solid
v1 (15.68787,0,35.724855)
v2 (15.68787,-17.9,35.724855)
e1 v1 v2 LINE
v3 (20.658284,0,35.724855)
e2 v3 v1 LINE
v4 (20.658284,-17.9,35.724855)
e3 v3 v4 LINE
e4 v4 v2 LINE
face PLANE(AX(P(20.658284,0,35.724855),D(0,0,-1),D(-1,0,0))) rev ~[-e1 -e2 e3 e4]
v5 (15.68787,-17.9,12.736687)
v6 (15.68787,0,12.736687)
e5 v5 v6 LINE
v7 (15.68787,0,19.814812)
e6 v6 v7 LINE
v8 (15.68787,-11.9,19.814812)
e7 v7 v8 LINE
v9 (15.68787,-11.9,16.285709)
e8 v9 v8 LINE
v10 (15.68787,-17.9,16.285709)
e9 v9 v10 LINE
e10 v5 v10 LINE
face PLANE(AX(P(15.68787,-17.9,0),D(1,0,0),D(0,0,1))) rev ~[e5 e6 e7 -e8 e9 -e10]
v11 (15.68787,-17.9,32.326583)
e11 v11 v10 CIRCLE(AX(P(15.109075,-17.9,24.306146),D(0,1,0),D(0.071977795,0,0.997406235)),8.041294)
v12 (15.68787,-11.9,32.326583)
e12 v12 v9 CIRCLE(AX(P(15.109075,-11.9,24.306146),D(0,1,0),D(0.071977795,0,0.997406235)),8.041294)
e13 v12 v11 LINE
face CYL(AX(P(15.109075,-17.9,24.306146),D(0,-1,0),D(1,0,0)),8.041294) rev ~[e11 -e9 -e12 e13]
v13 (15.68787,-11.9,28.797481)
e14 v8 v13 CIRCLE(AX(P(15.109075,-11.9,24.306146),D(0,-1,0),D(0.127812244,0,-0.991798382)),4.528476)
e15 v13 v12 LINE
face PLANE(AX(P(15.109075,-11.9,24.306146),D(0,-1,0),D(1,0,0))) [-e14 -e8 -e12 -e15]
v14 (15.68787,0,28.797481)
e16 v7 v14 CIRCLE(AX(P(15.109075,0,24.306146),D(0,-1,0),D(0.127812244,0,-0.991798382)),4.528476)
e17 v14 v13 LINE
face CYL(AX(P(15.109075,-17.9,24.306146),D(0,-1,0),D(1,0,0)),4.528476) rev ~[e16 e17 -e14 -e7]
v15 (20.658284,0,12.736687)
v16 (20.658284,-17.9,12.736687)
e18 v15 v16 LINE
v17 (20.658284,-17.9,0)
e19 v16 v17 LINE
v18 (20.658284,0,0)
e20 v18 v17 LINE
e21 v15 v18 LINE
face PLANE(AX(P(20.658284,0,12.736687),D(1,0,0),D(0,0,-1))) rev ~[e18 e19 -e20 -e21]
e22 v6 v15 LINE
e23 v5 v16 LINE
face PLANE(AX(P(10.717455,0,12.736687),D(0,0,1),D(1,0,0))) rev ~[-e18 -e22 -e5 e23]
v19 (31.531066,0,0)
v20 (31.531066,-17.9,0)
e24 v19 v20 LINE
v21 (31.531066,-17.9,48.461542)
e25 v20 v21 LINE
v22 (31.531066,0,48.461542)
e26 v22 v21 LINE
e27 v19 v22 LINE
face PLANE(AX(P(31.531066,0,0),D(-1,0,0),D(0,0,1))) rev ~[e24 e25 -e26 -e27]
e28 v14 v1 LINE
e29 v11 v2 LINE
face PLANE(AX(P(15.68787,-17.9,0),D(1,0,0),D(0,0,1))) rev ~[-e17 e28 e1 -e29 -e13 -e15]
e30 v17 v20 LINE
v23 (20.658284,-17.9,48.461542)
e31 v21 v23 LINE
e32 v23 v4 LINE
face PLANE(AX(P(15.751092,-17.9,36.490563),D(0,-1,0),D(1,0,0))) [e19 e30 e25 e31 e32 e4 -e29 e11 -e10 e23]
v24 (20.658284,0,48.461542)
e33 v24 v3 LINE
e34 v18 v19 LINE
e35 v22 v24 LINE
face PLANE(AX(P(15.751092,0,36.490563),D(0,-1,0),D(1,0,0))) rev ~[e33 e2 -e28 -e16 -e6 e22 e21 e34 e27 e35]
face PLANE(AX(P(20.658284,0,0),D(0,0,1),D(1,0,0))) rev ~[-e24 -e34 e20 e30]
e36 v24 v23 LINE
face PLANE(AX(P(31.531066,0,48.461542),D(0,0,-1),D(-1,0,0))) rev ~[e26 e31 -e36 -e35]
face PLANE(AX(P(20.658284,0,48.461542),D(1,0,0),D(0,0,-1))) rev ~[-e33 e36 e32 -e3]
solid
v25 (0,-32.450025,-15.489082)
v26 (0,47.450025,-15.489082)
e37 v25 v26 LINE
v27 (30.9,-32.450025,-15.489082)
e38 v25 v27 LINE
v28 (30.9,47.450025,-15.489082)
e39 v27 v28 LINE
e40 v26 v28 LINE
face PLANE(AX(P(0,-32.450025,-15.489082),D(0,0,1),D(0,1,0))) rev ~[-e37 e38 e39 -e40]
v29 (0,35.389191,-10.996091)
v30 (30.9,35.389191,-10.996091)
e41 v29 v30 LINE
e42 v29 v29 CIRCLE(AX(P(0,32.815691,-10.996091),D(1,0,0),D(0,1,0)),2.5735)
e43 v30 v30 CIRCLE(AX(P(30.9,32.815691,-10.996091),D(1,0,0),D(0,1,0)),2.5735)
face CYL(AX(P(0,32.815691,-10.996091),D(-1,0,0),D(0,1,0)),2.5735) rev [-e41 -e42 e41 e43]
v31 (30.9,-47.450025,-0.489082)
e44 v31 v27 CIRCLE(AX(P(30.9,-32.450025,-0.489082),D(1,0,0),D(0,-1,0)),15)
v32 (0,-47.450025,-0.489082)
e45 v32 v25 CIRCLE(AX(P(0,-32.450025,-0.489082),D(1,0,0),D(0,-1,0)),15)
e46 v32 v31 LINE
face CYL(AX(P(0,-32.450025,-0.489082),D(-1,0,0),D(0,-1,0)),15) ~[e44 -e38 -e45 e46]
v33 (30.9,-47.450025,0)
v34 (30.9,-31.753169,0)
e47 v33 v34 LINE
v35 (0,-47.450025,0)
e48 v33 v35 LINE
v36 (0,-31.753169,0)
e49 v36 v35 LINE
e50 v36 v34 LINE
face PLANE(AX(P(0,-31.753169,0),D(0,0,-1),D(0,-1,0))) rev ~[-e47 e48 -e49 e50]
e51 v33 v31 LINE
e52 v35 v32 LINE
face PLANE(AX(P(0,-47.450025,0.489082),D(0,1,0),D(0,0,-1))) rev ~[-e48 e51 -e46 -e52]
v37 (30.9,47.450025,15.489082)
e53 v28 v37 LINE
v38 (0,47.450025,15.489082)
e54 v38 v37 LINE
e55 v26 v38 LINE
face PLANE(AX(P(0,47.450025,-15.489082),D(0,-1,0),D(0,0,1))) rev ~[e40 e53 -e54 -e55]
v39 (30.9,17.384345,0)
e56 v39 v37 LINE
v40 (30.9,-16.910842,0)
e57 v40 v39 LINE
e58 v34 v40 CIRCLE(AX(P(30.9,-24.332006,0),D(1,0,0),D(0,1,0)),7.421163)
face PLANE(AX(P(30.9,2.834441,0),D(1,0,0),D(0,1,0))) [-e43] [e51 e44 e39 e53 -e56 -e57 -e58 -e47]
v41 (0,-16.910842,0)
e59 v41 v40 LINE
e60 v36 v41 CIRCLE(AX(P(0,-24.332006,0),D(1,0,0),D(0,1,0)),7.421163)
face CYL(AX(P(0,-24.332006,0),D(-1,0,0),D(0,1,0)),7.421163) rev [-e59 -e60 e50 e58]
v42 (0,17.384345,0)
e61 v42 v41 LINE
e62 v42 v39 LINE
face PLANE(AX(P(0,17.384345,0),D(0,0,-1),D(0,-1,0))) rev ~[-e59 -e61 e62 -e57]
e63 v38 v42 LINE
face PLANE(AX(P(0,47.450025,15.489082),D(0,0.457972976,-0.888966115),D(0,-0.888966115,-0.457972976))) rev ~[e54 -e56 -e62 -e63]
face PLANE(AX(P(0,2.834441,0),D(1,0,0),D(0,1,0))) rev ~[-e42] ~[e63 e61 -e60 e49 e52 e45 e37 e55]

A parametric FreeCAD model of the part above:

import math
import FreeCAD as App
import Part
import Sketcher

doc = App.newDocument("Part")
body = doc.addObject("PartDesign::Body", "Body")

# Sketch on XZ plane
sketch1 = body.newObject("Sketcher::SketchObject", "Sketch")
sketch1.AttachmentSupport = (doc.getObject("XZ_Plane"), [""])
sketch1.MapMode = "FlatFace"
sketch1.addGeometry([
    Part.LineSegment(App.Vector(0, 48, 0), App.Vector(0, 0, 0)),  # 0
    Part.LineSegment(App.Vector(0, 0, 0), App.Vector(11, 0, 0)),  # 1
    Part.LineSegment(App.Vector(11, 0, 0), App.Vector(11, 13, 0)),  # 2
    Part.LineSegment(App.Vector(11, 13, 0), App.Vector(21, 13, 0)),  # 3
    Part.LineSegment(App.Vector(21, 13, 0), App.Vector(21, 0, 0)),  # 4
    Part.LineSegment(App.Vector(21, 0, 0), App.Vector(32, 0, 0)),  # 5
    Part.LineSegment(App.Vector(32, 0, 0), App.Vector(32, 48, 0)),  # 6
    Part.LineSegment(App.Vector(32, 48, 0), App.Vector(21, 48, 0)),  # 7
    Part.LineSegment(App.Vector(21, 48, 0), App.Vector(21, 36, 0)),  # 8
    Part.LineSegment(App.Vector(21, 36, 0), App.Vector(11, 36, 0)),  # 9
    Part.LineSegment(App.Vector(11, 36, 0), App.Vector(11, 48, 0)),  # 10
    Part.LineSegment(App.Vector(11, 48, 0), App.Vector(0, 48, 0)),  # 11
], False)
sketch1.addConstraint([
    Sketcher.Constraint("Coincident", 0, 2, 1, 1),
    Sketcher.Constraint("Coincident", 1, 2, 2, 1),
    Sketcher.Constraint("Coincident", 2, 2, 3, 1),
    Sketcher.Constraint("Coincident", 3, 2, 4, 1),
    Sketcher.Constraint("Coincident", 4, 2, 5, 1),
    Sketcher.Constraint("Coincident", 5, 2, 6, 1),
    Sketcher.Constraint("Coincident", 6, 2, 7, 1),
    Sketcher.Constraint("Coincident", 7, 2, 8, 1),
    Sketcher.Constraint("Coincident", 8, 2, 9, 1),
    Sketcher.Constraint("Coincident", 9, 2, 10, 1),
    Sketcher.Constraint("Coincident", 10, 2, 11, 1),
    Sketcher.Constraint("Coincident", 11, 2, 0, 1),
    Sketcher.Constraint("Vertical", 0),
    Sketcher.Constraint("Horizontal", 1),
    Sketcher.Constraint("Vertical", 2),
    Sketcher.Constraint("Horizontal", 3),
    Sketcher.Constraint("Vertical", 4),
    Sketcher.Constraint("Horizontal", 5),
    Sketcher.Constraint("Vertical", 6),
    Sketcher.Constraint("Horizontal", 7),
    Sketcher.Constraint("Vertical", 8),
    Sketcher.Constraint("Horizontal", 9),
    Sketcher.Constraint("Vertical", 10),
    Sketcher.Constraint("Horizontal", 11),
    Sketcher.Constraint("Coincident", 0, 2, -1, 1),
    Sketcher.Constraint("PointOnObject", 4, 2, -1),
    Sketcher.Constraint("Horizontal", 7, 2, 10, 2),
    Sketcher.Constraint("Vertical", 4, 2, 7, 2),
    Sketcher.Constraint("Vertical", 2, 2, 9, 2),
    Sketcher.Constraint("Equal", 4, 8),
    Sketcher.Constraint("DistanceX", 3, 1, 3, 2, 9.940829),
    Sketcher.Constraint("DistanceX", 5, 1, 5, 2, 10.872781),
    Sketcher.Constraint("DistanceY", 0, 2, 0, 1, 48.461542),
    Sketcher.Constraint("DistanceX", 1, 1, 1, 2, 10.717455),
    Sketcher.Constraint("DistanceY", 2, 1, 2, 2, 12.736687),
])
pad1 = body.newObject("PartDesign::Pad", "Pad")
pad1.Profile = sketch1
pad1.Length = 17.9

# Sketch on XZ plane
sketch2 = body.newObject("Sketcher::SketchObject", "Sketch001")
sketch2.AttachmentSupport = (doc.getObject("XZ_Plane"), [""])
sketch2.MapMode = "FlatFace"
sketch2.AttachmentOffset = App.Placement(App.Vector(0, 0, 17.9), App.Rotation())
sketch2.addGeometry(Part.Circle(App.Vector(15.1, 24.3, 0), App.Vector(0, 0, 1), 4.5), False)
sketch2.addConstraint([
    Sketcher.Constraint("Diameter", 0, 9.056951),
    Sketcher.Constraint("DistanceX", -1, 1, 0, 3, 15.109075),
    Sketcher.Constraint("DistanceY", -1, 1, 0, 3, 24.306146),
])
pocket1 = body.newObject("PartDesign::Pocket", "Pocket")
pocket1.Profile = sketch2
pocket1.Length = 25

# Sketch on XZ plane
sketch3 = body.newObject("Sketcher::SketchObject", "Sketch002")
sketch3.AttachmentSupport = (doc.getObject("XZ_Plane"), [""])
sketch3.MapMode = "FlatFace"
sketch3.AttachmentOffset = App.Placement(App.Vector(0, 0, 17.9), App.Rotation())
sketch3.addGeometry(Part.Circle(App.Vector(15, 24, 0), App.Vector(0, 0, 1), 8), False)
sketch3.addConstraint([
    Sketcher.Constraint("Diameter", 0, 16.082588),
    Sketcher.Constraint("DistanceX", -1, 1, 0, 3, 15.109075),
    Sketcher.Constraint("DistanceY", -1, 1, 0, 3, 24.306146),
])
pocket2 = body.newObject("PartDesign::Pocket", "Pocket001")
pocket2.Profile = sketch3
pocket2.Length = 6

# Sketch on XZ plane
sketch4 = body.newObject("Sketcher::SketchObject", "Sketch003")
sketch4.AttachmentSupport = (doc.getObject("XZ_Plane"), [""])
sketch4.MapMode = "FlatFace"
sketch4.AttachmentOffset = App.Placement(App.Vector(0, 0, 17.9), App.Rotation())
sketch4.addGeometry([
    Part.LineSegment(App.Vector(15.7, 52.5, 0), App.Vector(0, 52.5, 0)),  # 0
    Part.LineSegment(App.Vector(0, 52.5, 0), App.Vector(0, 48.5, 0)),  # 1
    Part.LineSegment(App.Vector(0, 48.5, 0), App.Vector(0, 35.7, 0)),  # 2
    Part.LineSegment(App.Vector(0, 35.7, 0), App.Vector(0, 0, 0)),  # 3
    Part.LineSegment(App.Vector(0, 0, 0), App.Vector(15.7, 0, 0)),  # 4
    Part.LineSegment(App.Vector(15.7, 0, 0), App.Vector(15.7, 52.5, 0)),  # 5
], False)
sketch4.addConstraint([
    Sketcher.Constraint("Coincident", 0, 2, 1, 1),
    Sketcher.Constraint("Coincident", 1, 2, 2, 1),
    Sketcher.Constraint("Coincident", 2, 2, 3, 1),
    Sketcher.Constraint("Coincident", 3, 2, 4, 1),
    Sketcher.Constraint("Coincident", 4, 2, 5, 1),
    Sketcher.Constraint("Coincident", 5, 2, 0, 1),
    Sketcher.Constraint("Horizontal", 0),
    Sketcher.Constraint("Vertical", 1),
    Sketcher.Constraint("Vertical", 2),
    Sketcher.Constraint("Vertical", 3),
    Sketcher.Constraint("Horizontal", 4),
    Sketcher.Constraint("Vertical", 5),
    Sketcher.Constraint("Coincident", 3, 2, -1, 1),
    Sketcher.Constraint("DistanceX", 0, 2, 0, 1, 15.68787),
    Sketcher.Constraint("DistanceY", 5, 1, 5, 2, 52.495759),
    Sketcher.Constraint("DistanceY", 1, 2, 1, 1, 4.034217),
    Sketcher.Constraint("DistanceY", 2, 2, 2, 1, 12.736687),
])
pocket3 = body.newObject("PartDesign::Pocket", "Pocket002")
pocket3.Profile = sketch4
pocket3.Length = 25
body2 = doc.addObject("PartDesign::Body", "Body001")

# Sketch on YZ plane
sketch5 = body2.newObject("Sketcher::SketchObject", "Sketch004")
sketch5.AttachmentSupport = (doc.getObject("YZ_Plane001"), [""])
sketch5.MapMode = "FlatFace"
sketch5.addGeometry([
    Part.LineSegment(App.Vector(47.5, 15.5, 0), App.Vector(-32.5, 15.5, 0)),  # 0
    Part.ArcOfCircle(Part.Circle(App.Vector(-32.5, 0.5, 0), App.Vector(0, 0, 1), 15), math.radians(90), math.radians(180)),  # 1
    Part.LineSegment(App.Vector(-47.5, 0.5, 0), App.Vector(-47.5, -0.5, 0)),  # 2
    Part.ArcOfCircle(Part.Circle(App.Vector(-32.5, -0.5, 0), App.Vector(0, 0, 1), 15), math.radians(180), math.radians(270)),  # 3
    Part.LineSegment(App.Vector(-32.5, -15.5, 0), App.Vector(47.5, -15.5, 0)),  # 4
    Part.LineSegment(App.Vector(47.5, -15.5, 0), App.Vector(47.5, 15.5, 0)),  # 5
    Part.Circle(App.Vector(32.8, -11, 0), App.Vector(0, 0, 1), 2.6),  # 6
    Part.Circle(App.Vector(-24.3, 0, 0), App.Vector(0, 0, 1), 7.4),  # 7
    Part.Circle(App.Vector(32.8, 11, 0), App.Vector(0, 0, 1), 2.6),  # 8
], False)
sketch5.addConstraint([
    Sketcher.Constraint("Tangent", 0, 2, 1, 1),
    Sketcher.Constraint("Tangent", 1, 2, 2, 1),
    Sketcher.Constraint("Tangent", 2, 2, 3, 1),
    Sketcher.Constraint("Tangent", 3, 2, 4, 1),
    Sketcher.Constraint("Coincident", 4, 2, 5, 1),
    Sketcher.Constraint("Coincident", 5, 2, 0, 1),
    Sketcher.Constraint("Horizontal", 0),
    Sketcher.Constraint("Vertical", 2),
    Sketcher.Constraint("Horizontal", 4),
    Sketcher.Constraint("Vertical", 5),
    Sketcher.Constraint("Equal", 1, 3),
    Sketcher.Constraint("Equal", 6, 8),
    Sketcher.Constraint("Symmetric", 6, 3, 8, 3, -1),
    Sketcher.Constraint("PointOnObject", 7, 3, -1),
    Sketcher.Constraint("Radius", 1, 15.0),
    Sketcher.Constraint("Diameter", 6, 5.147),
    Sketcher.Constraint("Diameter", 7, 14.842326),
    Sketcher.Constraint("DistanceX", 0, 2, 0, 1, 79.900049),
    Sketcher.Constraint("DistanceY", 2, 2, 2, 1, 0.978164),
    Sketcher.Constraint("DistanceY", -1, 1, 1, 3, 0.489082),
    Sketcher.Constraint("DistanceX", -1, 1, 6, 3, 32.815691),
    Sketcher.Constraint("DistanceY", 6, 3, -1, 1, 10.996091),
    Sketcher.Constraint("DistanceX", 1, 3, 7, 3, 8.118019),
    Sketcher.Constraint("DistanceX", 1, 3, -1, 1, 32.450025),
])
pad2 = body2.newObject("PartDesign::Pad", "Pad001")
pad2.Profile = sketch5
pad2.Length = 30.9

# Sketch on YZ plane
sketch6 = body2.newObject("Sketcher::SketchObject", "Sketch005")
sketch6.AttachmentSupport = (doc.getObject("YZ_Plane001"), [""])
sketch6.MapMode = "FlatFace"
sketch6.addGeometry([
    Part.LineSegment(App.Vector(-57.6, 0, 0), App.Vector(-61.2, 12.7, 0)),  # 0
    Part.LineSegment(App.Vector(-61.2, 12.7, 0), App.Vector(-25.2, 31, 0)),  # 1
    Part.LineSegment(App.Vector(-25.2, 31, 0), App.Vector(47.5, 15.5, 0)),  # 2
    Part.LineSegment(App.Vector(47.5, 15.5, 0), App.Vector(17.4, 0, 0)),  # 3
    Part.LineSegment(App.Vector(17.4, 0, 0), App.Vector(-16.9, 0, 0)),  # 4
    Part.ArcOfCircle(Part.Circle(App.Vector(-24.3, 0, 0), App.Vector(0, 0, 1), 7.4), math.radians(0), math.radians(180)),  # 5
    Part.LineSegment(App.Vector(-31.8, 0, 0), App.Vector(-57.6, 0, 0)),  # 6
    Part.Circle(App.Vector(32.8, 11, 0), App.Vector(0, 0, 1), 2.6),  # 7
], False)
sketch6.addConstraint([
    Sketcher.Constraint("Coincident", 0, 2, 1, 1),
    Sketcher.Constraint("Coincident", 1, 2, 2, 1),
    Sketcher.Constraint("Coincident", 2, 2, 3, 1),
    Sketcher.Constraint("Coincident", 3, 2, 4, 1),
    Sketcher.Constraint("Coincident", 4, 2, 5, 1),
    Sketcher.Constraint("Coincident", 5, 2, 6, 1),
    Sketcher.Constraint("Coincident", 6, 2, 0, 1),
    Sketcher.Constraint("Horizontal", 4),
    Sketcher.Constraint("Horizontal", 6),
    Sketcher.Constraint("PointOnObject", 5, 3, -1),
    Sketcher.Constraint("PointOnObject", 3, 2, -1),
    Sketcher.Constraint("PointOnObject", 5, 2, -1),
    Sketcher.Constraint("Diameter", 7, 5.147),
    Sketcher.Constraint("Radius", 5, 7.421163),
    Sketcher.Constraint("DistanceX", 5, 2, 1, 2, 6.521701),
    Sketcher.Constraint("Distance", 1, 40.40517),
    Sketcher.Constraint("Distance", 3, 33.820952),
    Sketcher.Constraint("DistanceX", 4, 2, 4, 1, 34.295187),
    Sketcher.Constraint("DistanceX", 6, 2, 6, 1, 25.866317),
    Sketcher.Constraint("DistanceX", -1, 1, 7, 3, 32.815691),
    Sketcher.Constraint("DistanceY", -1, 1, 7, 3, 10.996091),
    Sketcher.Constraint("DistanceY", -1, 1, 2, 2, 15.489082),
    Sketcher.Constraint("DistanceX", 5, 2, -1, 1, 31.753169),
    Sketcher.Constraint("DistanceX", 0, 2, 5, 3, 36.886152),
    Sketcher.Constraint("Distance", 0, 13.169343),
])
pocket4 = body2.newObject("PartDesign::Pocket", "Pocket003")
pocket4.Profile = sketch6
pocket4.Length = 46.3
pocket4.Reversed = True

doc.recompute()
